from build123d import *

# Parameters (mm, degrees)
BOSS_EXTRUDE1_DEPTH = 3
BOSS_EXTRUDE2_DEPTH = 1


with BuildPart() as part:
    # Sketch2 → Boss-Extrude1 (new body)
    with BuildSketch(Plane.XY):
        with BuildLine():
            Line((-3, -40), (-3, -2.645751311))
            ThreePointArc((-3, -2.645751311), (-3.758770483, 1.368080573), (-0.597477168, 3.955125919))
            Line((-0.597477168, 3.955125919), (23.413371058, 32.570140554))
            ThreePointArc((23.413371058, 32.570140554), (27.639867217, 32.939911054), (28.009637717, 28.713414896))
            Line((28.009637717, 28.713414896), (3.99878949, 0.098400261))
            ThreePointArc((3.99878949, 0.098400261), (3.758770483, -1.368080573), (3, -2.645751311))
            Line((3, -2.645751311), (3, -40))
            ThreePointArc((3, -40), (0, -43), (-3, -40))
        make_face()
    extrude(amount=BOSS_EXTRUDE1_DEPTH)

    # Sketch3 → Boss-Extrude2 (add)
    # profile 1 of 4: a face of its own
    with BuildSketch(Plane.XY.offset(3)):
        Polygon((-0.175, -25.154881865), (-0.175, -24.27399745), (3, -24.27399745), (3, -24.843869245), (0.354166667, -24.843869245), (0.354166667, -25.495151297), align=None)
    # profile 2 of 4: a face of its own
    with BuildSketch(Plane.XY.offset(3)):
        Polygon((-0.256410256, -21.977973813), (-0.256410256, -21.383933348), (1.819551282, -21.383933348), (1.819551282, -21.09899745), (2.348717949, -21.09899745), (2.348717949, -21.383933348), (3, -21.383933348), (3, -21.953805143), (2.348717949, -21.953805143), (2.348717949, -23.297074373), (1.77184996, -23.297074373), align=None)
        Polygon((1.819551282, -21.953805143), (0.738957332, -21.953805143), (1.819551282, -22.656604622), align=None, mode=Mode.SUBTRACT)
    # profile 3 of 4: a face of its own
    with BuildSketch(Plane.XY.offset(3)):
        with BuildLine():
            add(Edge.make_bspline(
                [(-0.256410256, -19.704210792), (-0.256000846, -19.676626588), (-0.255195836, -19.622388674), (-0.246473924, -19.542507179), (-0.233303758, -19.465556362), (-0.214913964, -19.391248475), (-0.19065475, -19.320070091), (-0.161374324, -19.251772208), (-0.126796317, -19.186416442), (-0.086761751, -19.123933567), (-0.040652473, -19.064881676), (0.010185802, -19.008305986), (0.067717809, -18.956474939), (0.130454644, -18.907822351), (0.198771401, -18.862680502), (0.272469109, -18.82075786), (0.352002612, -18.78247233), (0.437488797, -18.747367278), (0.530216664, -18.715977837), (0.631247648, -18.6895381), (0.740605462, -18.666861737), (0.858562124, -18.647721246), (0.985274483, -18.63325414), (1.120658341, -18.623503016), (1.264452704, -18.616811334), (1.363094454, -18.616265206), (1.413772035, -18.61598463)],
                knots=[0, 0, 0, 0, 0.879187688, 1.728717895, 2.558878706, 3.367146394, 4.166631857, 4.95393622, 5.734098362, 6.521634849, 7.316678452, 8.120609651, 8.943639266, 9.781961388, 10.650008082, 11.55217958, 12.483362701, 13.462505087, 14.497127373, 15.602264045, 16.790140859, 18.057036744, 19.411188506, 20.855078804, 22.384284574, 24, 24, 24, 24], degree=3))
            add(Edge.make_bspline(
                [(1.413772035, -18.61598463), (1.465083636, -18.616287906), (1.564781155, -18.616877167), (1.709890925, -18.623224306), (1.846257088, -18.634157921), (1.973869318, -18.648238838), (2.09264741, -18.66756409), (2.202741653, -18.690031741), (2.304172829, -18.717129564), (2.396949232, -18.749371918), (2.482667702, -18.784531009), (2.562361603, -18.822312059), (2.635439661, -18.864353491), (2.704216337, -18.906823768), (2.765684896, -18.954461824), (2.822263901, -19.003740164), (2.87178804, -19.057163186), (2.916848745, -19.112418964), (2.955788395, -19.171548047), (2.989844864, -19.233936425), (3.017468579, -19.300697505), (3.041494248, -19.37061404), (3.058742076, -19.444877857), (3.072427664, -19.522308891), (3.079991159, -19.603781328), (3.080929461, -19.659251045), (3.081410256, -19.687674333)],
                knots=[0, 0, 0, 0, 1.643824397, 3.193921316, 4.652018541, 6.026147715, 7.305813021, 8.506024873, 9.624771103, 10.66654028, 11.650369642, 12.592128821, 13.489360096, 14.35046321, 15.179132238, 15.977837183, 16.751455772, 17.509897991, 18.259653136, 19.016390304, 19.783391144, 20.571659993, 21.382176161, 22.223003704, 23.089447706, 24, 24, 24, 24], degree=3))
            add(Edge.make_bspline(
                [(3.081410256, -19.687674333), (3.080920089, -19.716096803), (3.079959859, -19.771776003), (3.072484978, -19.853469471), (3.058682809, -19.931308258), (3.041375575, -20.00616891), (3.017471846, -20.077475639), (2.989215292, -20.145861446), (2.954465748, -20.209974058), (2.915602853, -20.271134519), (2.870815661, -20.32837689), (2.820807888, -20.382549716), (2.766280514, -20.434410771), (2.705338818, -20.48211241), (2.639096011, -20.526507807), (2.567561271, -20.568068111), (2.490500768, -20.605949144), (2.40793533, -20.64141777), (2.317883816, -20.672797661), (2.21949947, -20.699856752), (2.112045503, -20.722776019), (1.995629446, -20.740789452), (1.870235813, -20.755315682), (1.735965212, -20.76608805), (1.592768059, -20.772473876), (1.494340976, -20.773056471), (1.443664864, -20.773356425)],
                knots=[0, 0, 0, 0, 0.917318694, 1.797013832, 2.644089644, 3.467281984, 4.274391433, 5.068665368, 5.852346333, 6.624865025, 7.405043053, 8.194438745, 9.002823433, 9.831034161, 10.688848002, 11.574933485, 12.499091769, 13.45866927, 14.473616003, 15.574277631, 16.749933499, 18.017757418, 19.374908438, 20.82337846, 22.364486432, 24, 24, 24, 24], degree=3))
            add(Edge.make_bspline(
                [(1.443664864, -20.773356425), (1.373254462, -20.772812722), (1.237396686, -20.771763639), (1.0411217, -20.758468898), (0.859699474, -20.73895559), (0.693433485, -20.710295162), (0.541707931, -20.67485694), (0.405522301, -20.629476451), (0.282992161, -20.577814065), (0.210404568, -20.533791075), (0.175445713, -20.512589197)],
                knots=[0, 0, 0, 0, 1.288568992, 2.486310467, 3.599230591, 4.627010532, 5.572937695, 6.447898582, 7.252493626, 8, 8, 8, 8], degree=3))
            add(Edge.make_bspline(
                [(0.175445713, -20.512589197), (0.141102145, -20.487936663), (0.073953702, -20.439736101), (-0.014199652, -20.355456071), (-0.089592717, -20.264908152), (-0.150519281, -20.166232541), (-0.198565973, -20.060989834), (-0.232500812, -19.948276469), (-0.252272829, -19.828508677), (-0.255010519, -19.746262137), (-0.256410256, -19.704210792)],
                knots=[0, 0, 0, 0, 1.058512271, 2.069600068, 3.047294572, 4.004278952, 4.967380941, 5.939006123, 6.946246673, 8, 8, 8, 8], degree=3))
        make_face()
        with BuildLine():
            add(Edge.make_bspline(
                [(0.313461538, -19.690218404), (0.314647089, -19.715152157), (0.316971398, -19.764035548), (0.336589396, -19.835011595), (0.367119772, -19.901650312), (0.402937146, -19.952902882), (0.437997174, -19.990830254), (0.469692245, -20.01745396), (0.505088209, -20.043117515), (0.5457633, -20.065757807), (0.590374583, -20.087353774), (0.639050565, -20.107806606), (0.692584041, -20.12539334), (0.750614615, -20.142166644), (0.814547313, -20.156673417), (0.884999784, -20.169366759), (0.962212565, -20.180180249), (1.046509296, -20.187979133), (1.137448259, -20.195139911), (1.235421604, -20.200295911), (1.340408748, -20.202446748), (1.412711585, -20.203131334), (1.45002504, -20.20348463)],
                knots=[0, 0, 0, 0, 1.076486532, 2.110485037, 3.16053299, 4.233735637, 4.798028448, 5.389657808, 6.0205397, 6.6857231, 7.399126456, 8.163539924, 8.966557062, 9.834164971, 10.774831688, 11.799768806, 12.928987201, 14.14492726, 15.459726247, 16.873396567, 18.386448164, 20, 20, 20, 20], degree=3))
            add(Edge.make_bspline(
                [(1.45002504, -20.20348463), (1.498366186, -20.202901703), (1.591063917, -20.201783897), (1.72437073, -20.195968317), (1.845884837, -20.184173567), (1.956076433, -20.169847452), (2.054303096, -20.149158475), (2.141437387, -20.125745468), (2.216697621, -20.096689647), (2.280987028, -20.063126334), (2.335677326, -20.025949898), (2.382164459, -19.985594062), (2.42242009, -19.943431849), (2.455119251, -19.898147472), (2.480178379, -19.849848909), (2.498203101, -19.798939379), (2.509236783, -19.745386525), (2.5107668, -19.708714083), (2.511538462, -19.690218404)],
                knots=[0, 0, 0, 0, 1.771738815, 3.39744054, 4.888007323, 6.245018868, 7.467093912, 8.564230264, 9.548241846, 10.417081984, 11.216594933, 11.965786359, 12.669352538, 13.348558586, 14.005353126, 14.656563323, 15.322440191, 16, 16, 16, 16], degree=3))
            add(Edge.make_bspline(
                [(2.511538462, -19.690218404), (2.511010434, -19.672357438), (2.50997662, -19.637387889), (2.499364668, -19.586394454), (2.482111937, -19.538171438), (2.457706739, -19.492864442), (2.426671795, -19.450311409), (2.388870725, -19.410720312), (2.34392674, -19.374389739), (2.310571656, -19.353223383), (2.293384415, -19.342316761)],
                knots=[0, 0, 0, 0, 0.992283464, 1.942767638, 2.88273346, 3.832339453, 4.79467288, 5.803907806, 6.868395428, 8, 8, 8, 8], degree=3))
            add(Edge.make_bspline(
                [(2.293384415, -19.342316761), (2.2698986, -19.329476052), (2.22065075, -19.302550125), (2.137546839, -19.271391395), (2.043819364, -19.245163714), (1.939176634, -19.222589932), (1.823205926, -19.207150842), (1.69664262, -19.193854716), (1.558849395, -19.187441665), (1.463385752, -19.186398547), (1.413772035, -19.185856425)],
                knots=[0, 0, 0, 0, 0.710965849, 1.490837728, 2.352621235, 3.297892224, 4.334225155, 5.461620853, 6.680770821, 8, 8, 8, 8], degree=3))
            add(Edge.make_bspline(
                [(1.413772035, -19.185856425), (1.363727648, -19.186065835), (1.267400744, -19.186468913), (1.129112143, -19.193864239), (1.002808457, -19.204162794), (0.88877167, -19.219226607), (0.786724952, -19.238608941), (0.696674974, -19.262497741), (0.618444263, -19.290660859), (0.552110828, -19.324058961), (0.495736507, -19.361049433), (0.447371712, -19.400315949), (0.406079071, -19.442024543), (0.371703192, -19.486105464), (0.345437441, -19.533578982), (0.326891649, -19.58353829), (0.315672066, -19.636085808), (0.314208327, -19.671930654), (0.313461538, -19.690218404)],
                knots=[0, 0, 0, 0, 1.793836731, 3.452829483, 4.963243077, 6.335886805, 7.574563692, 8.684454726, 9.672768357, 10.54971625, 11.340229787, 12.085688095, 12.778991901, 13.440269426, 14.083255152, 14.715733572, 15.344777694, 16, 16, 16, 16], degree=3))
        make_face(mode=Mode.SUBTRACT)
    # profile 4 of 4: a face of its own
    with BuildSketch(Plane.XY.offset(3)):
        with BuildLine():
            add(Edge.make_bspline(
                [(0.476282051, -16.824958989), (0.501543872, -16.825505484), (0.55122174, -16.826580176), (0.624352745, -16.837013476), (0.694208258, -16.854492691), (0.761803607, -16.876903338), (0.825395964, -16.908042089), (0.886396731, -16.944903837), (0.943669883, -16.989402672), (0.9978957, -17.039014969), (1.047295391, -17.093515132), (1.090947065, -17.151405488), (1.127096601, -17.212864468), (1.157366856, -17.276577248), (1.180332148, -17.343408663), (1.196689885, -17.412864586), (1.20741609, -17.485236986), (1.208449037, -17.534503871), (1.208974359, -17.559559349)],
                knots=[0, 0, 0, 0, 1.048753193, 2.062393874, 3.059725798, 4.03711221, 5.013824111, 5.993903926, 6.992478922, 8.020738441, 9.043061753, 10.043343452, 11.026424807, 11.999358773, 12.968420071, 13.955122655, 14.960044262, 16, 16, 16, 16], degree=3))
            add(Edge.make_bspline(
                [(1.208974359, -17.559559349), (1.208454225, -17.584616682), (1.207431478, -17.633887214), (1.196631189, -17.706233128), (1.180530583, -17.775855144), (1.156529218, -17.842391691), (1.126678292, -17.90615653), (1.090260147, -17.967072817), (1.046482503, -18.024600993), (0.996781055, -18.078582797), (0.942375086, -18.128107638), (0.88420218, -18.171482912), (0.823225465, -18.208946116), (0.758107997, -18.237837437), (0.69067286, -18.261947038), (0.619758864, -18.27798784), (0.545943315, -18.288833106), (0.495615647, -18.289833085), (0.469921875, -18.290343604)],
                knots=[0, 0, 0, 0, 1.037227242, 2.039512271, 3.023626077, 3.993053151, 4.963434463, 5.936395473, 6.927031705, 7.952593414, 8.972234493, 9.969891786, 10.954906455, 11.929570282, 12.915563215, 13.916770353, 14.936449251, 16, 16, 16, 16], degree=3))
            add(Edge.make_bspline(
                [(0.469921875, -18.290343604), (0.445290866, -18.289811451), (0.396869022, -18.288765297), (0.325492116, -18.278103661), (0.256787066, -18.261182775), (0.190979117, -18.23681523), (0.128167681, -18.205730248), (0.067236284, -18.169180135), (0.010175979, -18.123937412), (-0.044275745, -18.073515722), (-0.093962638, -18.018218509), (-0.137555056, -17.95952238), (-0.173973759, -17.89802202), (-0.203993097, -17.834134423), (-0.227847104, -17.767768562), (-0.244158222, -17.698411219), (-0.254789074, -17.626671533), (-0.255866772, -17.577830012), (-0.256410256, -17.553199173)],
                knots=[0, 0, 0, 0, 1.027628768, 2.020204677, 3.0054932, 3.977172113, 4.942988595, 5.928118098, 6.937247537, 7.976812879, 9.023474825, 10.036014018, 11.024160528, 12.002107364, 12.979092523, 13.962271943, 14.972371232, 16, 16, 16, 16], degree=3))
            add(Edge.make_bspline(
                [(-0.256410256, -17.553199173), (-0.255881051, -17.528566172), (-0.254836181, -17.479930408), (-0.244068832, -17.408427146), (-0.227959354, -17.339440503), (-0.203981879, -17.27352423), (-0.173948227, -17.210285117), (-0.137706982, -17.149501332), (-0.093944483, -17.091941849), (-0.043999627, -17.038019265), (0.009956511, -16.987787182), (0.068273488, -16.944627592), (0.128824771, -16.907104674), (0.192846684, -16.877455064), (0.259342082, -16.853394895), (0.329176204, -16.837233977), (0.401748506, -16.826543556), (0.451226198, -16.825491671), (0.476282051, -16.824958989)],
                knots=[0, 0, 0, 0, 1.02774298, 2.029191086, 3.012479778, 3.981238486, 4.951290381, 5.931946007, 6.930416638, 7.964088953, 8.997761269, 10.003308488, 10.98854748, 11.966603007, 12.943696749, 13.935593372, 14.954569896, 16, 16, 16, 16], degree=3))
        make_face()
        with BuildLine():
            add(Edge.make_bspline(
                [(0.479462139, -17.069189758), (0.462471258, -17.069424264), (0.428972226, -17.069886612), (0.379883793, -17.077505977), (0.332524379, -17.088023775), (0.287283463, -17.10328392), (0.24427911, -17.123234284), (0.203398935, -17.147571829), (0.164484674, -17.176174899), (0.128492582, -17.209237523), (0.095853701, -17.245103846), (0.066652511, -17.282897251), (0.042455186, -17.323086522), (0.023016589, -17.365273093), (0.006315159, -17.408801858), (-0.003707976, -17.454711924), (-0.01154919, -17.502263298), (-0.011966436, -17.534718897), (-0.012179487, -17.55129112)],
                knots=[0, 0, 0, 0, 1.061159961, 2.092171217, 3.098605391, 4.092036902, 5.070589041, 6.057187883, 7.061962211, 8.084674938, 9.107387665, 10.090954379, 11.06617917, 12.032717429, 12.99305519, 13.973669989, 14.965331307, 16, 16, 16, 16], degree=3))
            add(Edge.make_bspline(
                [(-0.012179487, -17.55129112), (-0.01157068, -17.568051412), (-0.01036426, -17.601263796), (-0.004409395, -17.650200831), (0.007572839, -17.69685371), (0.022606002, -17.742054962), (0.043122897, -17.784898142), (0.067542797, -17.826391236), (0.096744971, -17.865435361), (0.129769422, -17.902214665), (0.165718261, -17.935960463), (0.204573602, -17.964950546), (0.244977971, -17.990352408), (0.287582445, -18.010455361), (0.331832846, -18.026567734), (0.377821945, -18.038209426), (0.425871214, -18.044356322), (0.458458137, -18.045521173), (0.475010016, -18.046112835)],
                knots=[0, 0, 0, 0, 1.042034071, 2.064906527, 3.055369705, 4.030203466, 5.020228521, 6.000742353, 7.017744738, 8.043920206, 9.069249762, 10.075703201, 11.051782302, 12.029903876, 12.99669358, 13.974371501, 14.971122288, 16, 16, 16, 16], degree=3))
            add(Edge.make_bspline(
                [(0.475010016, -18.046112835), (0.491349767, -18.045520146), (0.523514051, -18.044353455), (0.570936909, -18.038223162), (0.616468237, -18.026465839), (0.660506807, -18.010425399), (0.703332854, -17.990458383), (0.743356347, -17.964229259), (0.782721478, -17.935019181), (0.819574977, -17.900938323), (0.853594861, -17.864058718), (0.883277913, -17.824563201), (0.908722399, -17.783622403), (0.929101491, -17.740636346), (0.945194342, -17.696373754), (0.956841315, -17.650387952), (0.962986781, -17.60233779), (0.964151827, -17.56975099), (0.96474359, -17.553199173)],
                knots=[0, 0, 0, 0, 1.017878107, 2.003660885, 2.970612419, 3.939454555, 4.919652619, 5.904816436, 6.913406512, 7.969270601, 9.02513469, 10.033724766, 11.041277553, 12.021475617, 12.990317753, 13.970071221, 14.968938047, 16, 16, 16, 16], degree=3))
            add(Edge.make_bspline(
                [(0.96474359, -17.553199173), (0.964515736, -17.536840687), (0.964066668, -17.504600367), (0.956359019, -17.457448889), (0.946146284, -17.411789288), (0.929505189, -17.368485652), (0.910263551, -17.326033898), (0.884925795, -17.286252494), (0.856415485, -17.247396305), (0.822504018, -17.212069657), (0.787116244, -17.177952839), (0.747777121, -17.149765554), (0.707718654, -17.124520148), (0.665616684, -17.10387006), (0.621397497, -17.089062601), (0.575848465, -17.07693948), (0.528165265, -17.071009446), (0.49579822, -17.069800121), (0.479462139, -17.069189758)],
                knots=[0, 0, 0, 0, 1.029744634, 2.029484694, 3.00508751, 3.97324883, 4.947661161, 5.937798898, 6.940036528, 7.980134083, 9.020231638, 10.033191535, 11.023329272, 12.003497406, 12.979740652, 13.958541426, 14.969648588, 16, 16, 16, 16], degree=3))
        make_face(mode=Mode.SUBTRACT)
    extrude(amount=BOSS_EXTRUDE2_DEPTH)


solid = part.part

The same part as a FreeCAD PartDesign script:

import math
import FreeCAD as App
import Part
import Sketcher
from FreeCAD import Vector
Q = App.Units.Quantity


def add_polygon(sketch, points):
    """Adds a closed chain of lines whose ends are joined by coincident constraints."""
    first, n = sketch.GeometryCount, len(points)
    for a, b in zip(points, points[1:] + points[:1]):
        sketch.addGeometry(Part.LineSegment(App.Vector(*a, 0), App.Vector(*b, 0)), False)
    for i in range(n):
        sketch.addConstraint(Sketcher.Constraint("Coincident", first + i, 2, first + (i + 1) % n, 1))

doc = App.newDocument("Part")
body = doc.addObject("PartDesign::Body", "Body")

# Sketch on XY plane
sketch1 = body.newObject("Sketcher::SketchObject", "Sketch")
sketch1.AttachmentSupport = (doc.getObject("XY_Plane"), [""])
sketch1.MapMode = "FlatFace"
sketch1.addGeometry(Part.LineSegment(Vector(-3, -2.6, 0), Vector(-3, -40, 0)), False)
sketch1.addGeometry(Part.ArcOfCircle(Part.Circle(Vector(0, -40, 0), Vector(0, 0, 1), 3), math.radians(180), math.radians(360)), False)
sketch1.addGeometry(Part.LineSegment(Vector(3, -40, 0), Vector(3, -2.6, 0)), False)
sketch1.addGeometry(Part.ArcOfCircle(Part.Circle(Vector(0, 0, 0), Vector(0, 0, 1), 4), math.radians(-41), math.radians(1)), False)
sketch1.addGeometry(Part.LineSegment(Vector(4, 0.1, 0), Vector(28, 28.7, 0)), False)
sketch1.addGeometry(Part.ArcOfCircle(Part.Circle(Vector(25.7, 30.6, 0), Vector(0, 0, 1), 3), math.radians(-40), math.radians(140)), False)
sketch1.addGeometry(Part.LineSegment(Vector(23.4, 32.6, 0), Vector(-0.6, 4, 0)), False)
sketch1.addGeometry(Part.ArcOfCircle(Part.Circle(Vector(0, 0, 0), Vector(0, 0, 1), 4), math.radians(99), math.radians(221)), False)
sketch1.addConstraint(Sketcher.Constraint("Tangent", 0, 2, 1, 1))
sketch1.addConstraint(Sketcher.Constraint("Tangent", 1, 2, 2, 1))
sketch1.addConstraint(Sketcher.Constraint("Coincident", 2, 2, 3, 1))
sketch1.addConstraint(Sketcher.Constraint("Coincident", 3, 2, 4, 1))
sketch1.addConstraint(Sketcher.Constraint("Tangent", 4, 2, 5, 1))
sketch1.addConstraint(Sketcher.Constraint("Tangent", 5, 2, 6, 1))
sketch1.addConstraint(Sketcher.Constraint("Coincident", 6, 2, 7, 1))
sketch1.addConstraint(Sketcher.Constraint("Coincident", 7, 2, 0, 1))
sketch1.addConstraint(Sketcher.Constraint("Vertical", 0))
sketch1.addConstraint(Sketcher.Constraint("Vertical", 2))
sketch1.addConstraint(Sketcher.Constraint("Coincident", 3, 3, -1, 1))
sketch1.addConstraint(Sketcher.Constraint("Coincident", 7, 3, -1, 1))
sketch1.addConstraint(Sketcher.Constraint("Equal", 1, 5))
sketch1.addConstraint(Sketcher.Constraint("Equal", 3, 7))
sketch1.addConstraint(Sketcher.Constraint("PointOnObject", 1, 3, -2))
sketch1.addConstraint(Sketcher.Constraint("Parallel", 4, 6))
sketch1.addConstraint(Sketcher.Constraint("Equal", 4, 6))
sketch1.addConstraint(Sketcher.Constraint("Radius", 1, Q("3 mm")))
sketch1.addConstraint(Sketcher.Constraint("Radius", 3, Q("4 mm")))
sketch1.addConstraint(Sketcher.Constraint("Angle", 4, Q("50 deg")))
sketch1.addConstraint(Sketcher.Constraint("DistanceY", 1, 3, -1, 1, Q("40 mm")))
sketch1.addConstraint(Sketcher.Constraint("Distance", 4, Q("37.354249 mm")))
pad1 = body.newObject("PartDesign::Pad", "Pad")
pad1.Profile = sketch1
pad1.Length = 3

# Sketch on XY plane
sketch2 = body.newObject("Sketcher::SketchObject", "Sketch001")
sketch2.AttachmentSupport = (doc.getObject("XY_Plane"), [""])
sketch2.MapMode = "FlatFace"
sketch2.AttachmentOffset = App.Placement(Vector(0, 0, 3), App.Rotation())
add_polygon(sketch2, [(-0.175, -24.273997), (-0.175, -25.154882), (0.354167, -25.495151), (0.354167, -24.843869), (3, -24.843869), (3, -24.273997)])  # lines 0-5
add_polygon(sketch2, [(-0.25641, -21.383933), (-0.25641, -21.977974), (1.77185, -23.297074), (2.348718, -23.297074), (2.348718, -21.953805), (3, -21.953805), (3, -21.383933), (2.348718, -21.383933), (2.348718, -21.098997), (1.819551, -21.098997), (1.819551, -21.383933)])  # lines 6-16
add_polygon(sketch2, [(1.819551, -21.953805), (1.819551, -22.656605), (0.738957, -21.953805)])  # lines 17-19
sketch2.addGeometry(Part.BSplineCurve([Vector(-0.25641, -19.704211, 0), Vector(-0.256001, -19.676627, 0), Vector(-0.255196, -19.622389, 0), Vector(-0.246474, -19.542507, 0), Vector(-0.233304, -19.465556, 0), Vector(-0.214914, -19.391248, 0), Vector(-0.190655, -19.32007, 0), Vector(-0.161374, -19.251772, 0), Vector(-0.126796, -19.186416, 0), Vector(-0.086762, -19.123934, 0), Vector(-0.040652, -19.064882, 0), Vector(0.010186, -19.008306, 0), Vector(0.067718, -18.956475, 0), Vector(0.130455, -18.907822, 0), Vector(0.198771, -18.862681, 0), Vector(0.272469, -18.820758, 0), Vector(0.352003, -18.782472, 0), Vector(0.437489, -18.747367, 0), Vector(0.530217, -18.715978, 0), Vector(0.631248, -18.689538, 0), Vector(0.740605, -18.666862, 0), Vector(0.858562, -18.647721, 0), Vector(0.985274, -18.633254, 0), Vector(1.120658, -18.623503, 0), Vector(1.264453, -18.616811, 0), Vector(1.363094, -18.616265, 0), Vector(1.413772, -18.615985, 0)], [4, 1, 1, 1, 1, 1, 1, 1, 1, 1, 1, 1, 1, 1, 1, 1, 1, 1, 1, 1, 1, 1, 1, 1, 4], [0, 0.879187688, 1.728717895, 2.558878706, 3.367146394, 4.166631857, 4.95393622, 5.734098362, 6.521634849, 7.316678452, 8.120609651, 8.943639266, 9.781961388, 10.650008082, 11.55217958, 12.483362701, 13.462505087, 14.497127373, 15.602264045, 16.790140859, 18.057036744, 19.411188506, 20.855078804, 22.384284574, 24], False, 3, [1, 1, 1, 1, 1, 1, 1, 1, 1, 1, 1, 1, 1, 1, 1, 1, 1, 1, 1, 1, 1, 1, 1, 1, 1, 1, 1], False), False)  # 20
sketch2.addGeometry(Part.BSplineCurve([Vector(0.175446, -20.512589, 0), Vector(0.141102, -20.487937, 0), Vector(0.073954, -20.439736, 0), Vector(-0.0142, -20.355456, 0), Vector(-0.089593, -20.264908, 0), Vector(-0.150519, -20.166233, 0), Vector(-0.198566, -20.06099, 0), Vector(-0.232501, -19.948276, 0), Vector(-0.252273, -19.828509, 0), Vector(-0.255011, -19.746262, 0), Vector(-0.25641, -19.704211, 0)], [4, 1, 1, 1, 1, 1, 1, 1, 4], [0, 1.058512271, 2.069600068, 3.047294572, 4.004278952, 4.967380941, 5.939006123, 6.946246673, 8], False, 3, [1, 1, 1, 1, 1, 1, 1, 1, 1, 1, 1], False), False)  # 21
sketch2.addGeometry(Part.BSplineCurve([Vector(1.443665, -20.773356, 0), Vector(1.373254, -20.772813, 0), Vector(1.237397, -20.771764, 0), Vector(1.041122, -20.758469, 0), Vector(0.859699, -20.738956, 0), Vector(0.693433, -20.710295, 0), Vector(0.541708, -20.674857, 0), Vector(0.405522, -20.629476, 0), Vector(0.282992, -20.577814, 0), Vector(0.210405, -20.533791, 0), Vector(0.175446, -20.512589, 0)], [4, 1, 1, 1, 1, 1, 1, 1, 4], [0, 1.288568992, 2.486310467, 3.599230591, 4.627010532, 5.572937695, 6.447898582, 7.252493626, 8], False, 3, [1, 1, 1, 1, 1, 1, 1, 1, 1, 1, 1], False), False)  # 22
sketch2.addGeometry(Part.BSplineCurve([Vector(3.08141, -19.687674, 0), Vector(3.08092, -19.716097, 0), Vector(3.07996, -19.771776, 0), Vector(3.072485, -19.853469, 0), Vector(3.058683, -19.931308, 0), Vector(3.041376, -20.006169, 0), Vector(3.017472, -20.077476, 0), Vector(2.989215, -20.145861, 0), Vector(2.954466, -20.209974, 0), Vector(2.915603, -20.271135, 0), Vector(2.870816, -20.328377, 0), Vector(2.820808, -20.38255, 0), Vector(2.766281, -20.434411, 0), Vector(2.705339, -20.482112, 0), Vector(2.639096, -20.526508, 0), Vector(2.567561, -20.568068, 0), Vector(2.490501, -20.605949, 0), Vector(2.407935, -20.641418, 0), Vector(2.317884, -20.672798, 0), Vector(2.219499, -20.699857, 0), Vector(2.112046, -20.722776, 0), Vector(1.995629, -20.740789, 0), Vector(1.870236, -20.755316, 0), Vector(1.735965, -20.766088, 0), Vector(1.592768, -20.772474, 0), Vector(1.494341, -20.773056, 0), Vector(1.443665, -20.773356, 0)], [4, 1, 1, 1, 1, 1, 1, 1, 1, 1, 1, 1, 1, 1, 1, 1, 1, 1, 1, 1, 1, 1, 1, 1, 4], [0, 0.917318694, 1.797013832, 2.644089644, 3.467281984, 4.274391433, 5.068665368, 5.852346333, 6.624865025, 7.405043053, 8.194438745, 9.002823433, 9.831034161, 10.688848002, 11.574933485, 12.499091769, 13.45866927, 14.473616003, 15.574277631, 16.749933499, 18.017757418, 19.374908438, 20.82337846, 22.364486432, 24], False, 3, [1, 1, 1, 1, 1, 1, 1, 1, 1, 1, 1, 1, 1, 1, 1, 1, 1, 1, 1, 1, 1, 1, 1, 1, 1, 1, 1], False), False)  # 23
sketch2.addGeometry(Part.BSplineCurve([Vector(1.413772, -18.615985, 0), Vector(1.465084, -18.616288, 0), Vector(1.564781, -18.616877, 0), Vector(1.709891, -18.623224, 0), Vector(1.846257, -18.634158, 0), Vector(1.973869, -18.648239, 0), Vector(2.092647, -18.667564, 0), Vector(2.202742, -18.690032, 0), Vector(2.304173, -18.71713, 0), Vector(2.396949, -18.749372, 0), Vector(2.482668, -18.784531, 0), Vector(2.562362, -18.822312, 0), Vector(2.63544, -18.864353, 0), Vector(2.704216, -18.906824, 0), Vector(2.765685, -18.954462, 0), Vector(2.822264, -19.00374, 0), Vector(2.871788, -19.057163, 0), Vector(2.916849, -19.112419, 0), Vector(2.955788, -19.171548, 0), Vector(2.989845, -19.233936, 0), Vector(3.017469, -19.300698, 0), Vector(3.041494, -19.370614, 0), Vector(3.058742, -19.444878, 0), Vector(3.072428, -19.522309, 0), Vector(3.079991, -19.603781, 0), Vector(3.080929, -19.659251, 0), Vector(3.08141, -19.687674, 0)], [4, 1, 1, 1, 1, 1, 1, 1, 1, 1, 1, 1, 1, 1, 1, 1, 1, 1, 1, 1, 1, 1, 1, 1, 4], [0, 1.643824397, 3.193921316, 4.652018541, 6.026147715, 7.305813021, 8.506024873, 9.624771103, 10.66654028, 11.650369642, 12.592128821, 13.489360096, 14.35046321, 15.179132238, 15.977837183, 16.751455772, 17.509897991, 18.259653136, 19.016390304, 19.783391144, 20.571659993, 21.382176161, 22.223003704, 23.089447706, 24], False, 3, [1, 1, 1, 1, 1, 1, 1, 1, 1, 1, 1, 1, 1, 1, 1, 1, 1, 1, 1, 1, 1, 1, 1, 1, 1, 1, 1], False), False)  # 24
sketch2.addGeometry(Part.BSplineCurve([Vector(1.413772, -19.185856, 0), Vector(1.363728, -19.186066, 0), Vector(1.267401, -19.186469, 0), Vector(1.129112, -19.193864, 0), Vector(1.002808, -19.204163, 0), Vector(0.888772, -19.219227, 0), Vector(0.786725, -19.238609, 0), Vector(0.696675, -19.262498, 0), Vector(0.618444, -19.290661, 0), Vector(0.552111, -19.324059, 0), Vector(0.495737, -19.361049, 0), Vector(0.447372, -19.400316, 0), Vector(0.406079, -19.442025, 0), Vector(0.371703, -19.486105, 0), Vector(0.345437, -19.533579, 0), Vector(0.326892, -19.583538, 0), Vector(0.315672, -19.636086, 0), Vector(0.314208, -19.671931, 0), Vector(0.313462, -19.690218, 0)], [4, 1, 1, 1, 1, 1, 1, 1, 1, 1, 1, 1, 1, 1, 1, 1, 4], [0, 1.793836731, 3.452829483, 4.963243077, 6.335886805, 7.574563692, 8.684454726, 9.672768357, 10.54971625, 11.340229787, 12.085688095, 12.778991901, 13.440269426, 14.083255152, 14.715733572, 15.344777694, 16], False, 3, [1, 1, 1, 1, 1, 1, 1, 1, 1, 1, 1, 1, 1, 1, 1, 1, 1, 1, 1], False), False)  # 25
sketch2.addGeometry(Part.BSplineCurve([Vector(2.293384, -19.342317, 0), Vector(2.269899, -19.329476, 0), Vector(2.220651, -19.30255, 0), Vector(2.137547, -19.271391, 0), Vector(2.043819, -19.245164, 0), Vector(1.939177, -19.22259, 0), Vector(1.823206, -19.207151, 0), Vector(1.696643, -19.193855, 0), Vector(1.558849, -19.187442, 0), Vector(1.463386, -19.186399, 0), Vector(1.413772, -19.185856, 0)], [4, 1, 1, 1, 1, 1, 1, 1, 4], [0, 0.710965849, 1.490837728, 2.352621235, 3.297892224, 4.334225155, 5.461620853, 6.680770821, 8], False, 3, [1, 1, 1, 1, 1, 1, 1, 1, 1, 1, 1], False), False)  # 26
sketch2.addGeometry(Part.BSplineCurve([Vector(2.511538, -19.690218, 0), Vector(2.51101, -19.672357, 0), Vector(2.509977, -19.637388, 0), Vector(2.499365, -19.586394, 0), Vector(2.482112, -19.538171, 0), Vector(2.457707, -19.492864, 0), Vector(2.426672, -19.450311, 0), Vector(2.388871, -19.41072, 0), Vector(2.343927, -19.37439, 0), Vector(2.310572, -19.353223, 0), Vector(2.293384, -19.342317, 0)], [4, 1, 1, 1, 1, 1, 1, 1, 4], [0, 0.992283464, 1.942767638, 2.88273346, 3.832339453, 4.79467288, 5.803907806, 6.868395428, 8], False, 3, [1, 1, 1, 1, 1, 1, 1, 1, 1, 1, 1], False), False)  # 27
sketch2.addGeometry(Part.BSplineCurve([Vector(1.450025, -20.203485, 0), Vector(1.498366, -20.202902, 0), Vector(1.591064, -20.201784, 0), Vector(1.724371, -20.195968, 0), Vector(1.845885, -20.184174, 0), Vector(1.956076, -20.169847, 0), Vector(2.054303, -20.149158, 0), Vector(2.141437, -20.125745, 0), Vector(2.216698, -20.09669, 0), Vector(2.280987, -20.063126, 0), Vector(2.335677, -20.02595, 0), Vector(2.382164, -19.985594, 0), Vector(2.42242, -19.943432, 0), Vector(2.455119, -19.898147, 0), Vector(2.480178, -19.849849, 0), Vector(2.498203, -19.798939, 0), Vector(2.509237, -19.745387, 0), Vector(2.510767, -19.708714, 0), Vector(2.511538, -19.690218, 0)], [4, 1, 1, 1, 1, 1, 1, 1, 1, 1, 1, 1, 1, 1, 1, 1, 4], [0, 1.771738815, 3.39744054, 4.888007323, 6.245018868, 7.467093912, 8.564230264, 9.548241846, 10.417081984, 11.216594933, 11.965786359, 12.669352538, 13.348558586, 14.005353126, 14.656563323, 15.322440191, 16], False, 3, [1, 1, 1, 1, 1, 1, 1, 1, 1, 1, 1, 1, 1, 1, 1, 1, 1, 1, 1], False), False)  # 28
sketch2.addGeometry(Part.BSplineCurve([Vector(0.313462, -19.690218, 0), Vector(0.314647, -19.715152, 0), Vector(0.316971, -19.764036, 0), Vector(0.336589, -19.835012, 0), Vector(0.36712, -19.90165, 0), Vector(0.402937, -19.952903, 0), Vector(0.437997, -19.99083, 0), Vector(0.469692, -20.017454, 0), Vector(0.505088, -20.043118, 0), Vector(0.545763, -20.065758, 0), Vector(0.590375, -20.087354, 0), Vector(0.639051, -20.107807, 0), Vector(0.692584, -20.125393, 0), Vector(0.750615, -20.142167, 0), Vector(0.814547, -20.156673, 0), Vector(0.885, -20.169367, 0), Vector(0.962213, -20.18018, 0), Vector(1.046509, -20.187979, 0), Vector(1.137448, -20.19514, 0), Vector(1.235422, -20.200296, 0), Vector(1.340409, -20.202447, 0), Vector(1.412712, -20.203131, 0), Vector(1.450025, -20.203485, 0)], [4, 1, 1, 1, 1, 1, 1, 1, 1, 1, 1, 1, 1, 1, 1, 1, 1, 1, 1, 1, 4], [0, 1.076486532, 2.110485037, 3.16053299, 4.233735637, 4.798028448, 5.389657808, 6.0205397, 6.6857231, 7.399126456, 8.163539924, 8.966557062, 9.834164971, 10.774831688, 11.799768806, 12.928987201, 14.14492726, 15.459726247, 16.873396567, 18.386448164, 20], False, 3, [1, 1, 1, 1, 1, 1, 1, 1, 1, 1, 1, 1, 1, 1, 1, 1, 1, 1, 1, 1, 1, 1, 1], False), False)  # 29
sketch2.addGeometry(Part.BSplineCurve([Vector(0.476282, -16.824959, 0), Vector(0.501544, -16.825505, 0), Vector(0.551222, -16.82658, 0), Vector(0.624353, -16.837013, 0), Vector(0.694208, -16.854493, 0), Vector(0.761804, -16.876903, 0), Vector(0.825396, -16.908042, 0), Vector(0.886397, -16.944904, 0), Vector(0.94367, -16.989403, 0), Vector(0.997896, -17.039015, 0), Vector(1.047295, -17.093515, 0), Vector(1.090947, -17.151405, 0), Vector(1.127097, -17.212864, 0), Vector(1.157367, -17.276577, 0), Vector(1.180332, -17.343409, 0), Vector(1.19669, -17.412865, 0), Vector(1.207416, -17.485237, 0), Vector(1.208449, -17.534504, 0), Vector(1.208974, -17.559559, 0)], [4, 1, 1, 1, 1, 1, 1, 1, 1, 1, 1, 1, 1, 1, 1, 1, 4], [0, 1.048753193, 2.062393874, 3.059725798, 4.03711221, 5.013824111, 5.993903926, 6.992478922, 8.020738441, 9.043061753, 10.043343452, 11.026424807, 11.999358773, 12.968420071, 13.955122655, 14.960044262, 16], False, 3, [1, 1, 1, 1, 1, 1, 1, 1, 1, 1, 1, 1, 1, 1, 1, 1, 1, 1, 1], False), False)  # 30
sketch2.addGeometry(Part.BSplineCurve([Vector(-0.25641, -17.553199, 0), Vector(-0.255881, -17.528566, 0), Vector(-0.254836, -17.47993, 0), Vector(-0.244069, -17.408427, 0), Vector(-0.227959, -17.339441, 0), Vector(-0.203982, -17.273524, 0), Vector(-0.173948, -17.210285, 0), Vector(-0.137707, -17.149501, 0), Vector(-0.093944, -17.091942, 0), Vector(-0.044, -17.038019, 0), Vector(0.009957, -16.987787, 0), Vector(0.068273, -16.944628, 0), Vector(0.128825, -16.907105, 0), Vector(0.192847, -16.877455, 0), Vector(0.259342, -16.853395, 0), Vector(0.329176, -16.837234, 0), Vector(0.401749, -16.826544, 0), Vector(0.451226, -16.825492, 0), Vector(0.476282, -16.824959, 0)], [4, 1, 1, 1, 1, 1, 1, 1, 1, 1, 1, 1, 1, 1, 1, 1, 4], [0, 1.02774298, 2.029191086, 3.012479778, 3.981238486, 4.951290381, 5.931946007, 6.930416638, 7.964088953, 8.997761269, 10.003308488, 10.98854748, 11.966603007, 12.943696749, 13.935593372, 14.954569896, 16], False, 3, [1, 1, 1, 1, 1, 1, 1, 1, 1, 1, 1, 1, 1, 1, 1, 1, 1, 1, 1], False), False)  # 31
sketch2.addGeometry(Part.BSplineCurve([Vector(0.469922, -18.290344, 0), Vector(0.445291, -18.289811, 0), Vector(0.396869, -18.288765, 0), Vector(0.325492, -18.278104, 0), Vector(0.256787, -18.261183, 0), Vector(0.190979, -18.236815, 0), Vector(0.128168, -18.20573, 0), Vector(0.067236, -18.16918, 0), Vector(0.010176, -18.123937, 0), Vector(-0.044276, -18.073516, 0), Vector(-0.093963, -18.018219, 0), Vector(-0.137555, -17.959522, 0), Vector(-0.173974, -17.898022, 0), Vector(-0.203993, -17.834134, 0), Vector(-0.227847, -17.767769, 0), Vector(-0.244158, -17.698411, 0), Vector(-0.254789, -17.626672, 0), Vector(-0.255867, -17.57783, 0), Vector(-0.25641, -17.553199, 0)], [4, 1, 1, 1, 1, 1, 1, 1, 1, 1, 1, 1, 1, 1, 1, 1, 4], [0, 1.027628768, 2.020204677, 3.0054932, 3.977172113, 4.942988595, 5.928118098, 6.937247537, 7.976812879, 9.023474825, 10.036014018, 11.024160528, 12.002107364, 12.979092523, 13.962271943, 14.972371232, 16], False, 3, [1, 1, 1, 1, 1, 1, 1, 1, 1, 1, 1, 1, 1, 1, 1, 1, 1, 1, 1], False), False)  # 32
sketch2.addGeometry(Part.BSplineCurve([Vector(1.208974, -17.559559, 0), Vector(1.208454, -17.584617, 0), Vector(1.207431, -17.633887, 0), Vector(1.196631, -17.706233, 0), Vector(1.180531, -17.775855, 0), Vector(1.156529, -17.842392, 0), Vector(1.126678, -17.906157, 0), Vector(1.09026, -17.967073, 0), Vector(1.046483, -18.024601, 0), Vector(0.996781, -18.078583, 0), Vector(0.942375, -18.128108, 0), Vector(0.884202, -18.171483, 0), Vector(0.823225, -18.208946, 0), Vector(0.758108, -18.237837, 0), Vector(0.690673, -18.261947, 0), Vector(0.619759, -18.277988, 0), Vector(0.545943, -18.288833, 0), Vector(0.495616, -18.289833, 0), Vector(0.469922, -18.290344, 0)], [4, 1, 1, 1, 1, 1, 1, 1, 1, 1, 1, 1, 1, 1, 1, 1, 4], [0, 1.037227242, 2.039512271, 3.023626077, 3.993053151, 4.963434463, 5.936395473, 6.927031705, 7.952593414, 8.972234493, 9.969891786, 10.954906455, 11.929570282, 12.915563215, 13.916770353, 14.936449251, 16], False, 3, [1, 1, 1, 1, 1, 1, 1, 1, 1, 1, 1, 1, 1, 1, 1, 1, 1, 1, 1], False), False)  # 33
sketch2.addGeometry(Part.BSplineCurve([Vector(0.964744, -17.553199, 0), Vector(0.964516, -17.536841, 0), Vector(0.964067, -17.5046, 0), Vector(0.956359, -17.457449, 0), Vector(0.946146, -17.411789, 0), Vector(0.929505, -17.368486, 0), Vector(0.910264, -17.326034, 0), Vector(0.884926, -17.286252, 0), Vector(0.856415, -17.247396, 0), Vector(0.822504, -17.21207, 0), Vector(0.787116, -17.177953, 0), Vector(0.747777, -17.149766, 0), Vector(0.707719, -17.12452, 0), Vector(0.665617, -17.10387, 0), Vector(0.621397, -17.089063, 0), Vector(0.575848, -17.076939, 0), Vector(0.528165, -17.071009, 0), Vector(0.495798, -17.0698, 0), Vector(0.479462, -17.06919, 0)], [4, 1, 1, 1, 1, 1, 1, 1, 1, 1, 1, 1, 1, 1, 1, 1, 4], [0, 1.029744634, 2.029484694, 3.00508751, 3.97324883, 4.947661161, 5.937798898, 6.940036528, 7.980134083, 9.020231638, 10.033191535, 11.023329272, 12.003497406, 12.979740652, 13.958541426, 14.969648588, 16], False, 3, [1, 1, 1, 1, 1, 1, 1, 1, 1, 1, 1, 1, 1, 1, 1, 1, 1, 1, 1], False), False)  # 34
sketch2.addGeometry(Part.BSplineCurve([Vector(0.47501, -18.046113, 0), Vector(0.49135, -18.04552, 0), Vector(0.523514, -18.044353, 0), Vector(0.570937, -18.038223, 0), Vector(0.616468, -18.026466, 0), Vector(0.660507, -18.010425, 0), Vector(0.703333, -17.990458, 0), Vector(0.743356, -17.964229, 0), Vector(0.782721, -17.935019, 0), Vector(0.819575, -17.900938, 0), Vector(0.853595, -17.864059, 0), Vector(0.883278, -17.824563, 0), Vector(0.908722, -17.783622, 0), Vector(0.929101, -17.740636, 0), Vector(0.945194, -17.696374, 0), Vector(0.956841, -17.650388, 0), Vector(0.962987, -17.602338, 0), Vector(0.964152, -17.569751, 0), Vector(0.964744, -17.553199, 0)], [4, 1, 1, 1, 1, 1, 1, 1, 1, 1, 1, 1, 1, 1, 1, 1, 4], [0, 1.017878107, 2.003660885, 2.970612419, 3.939454555, 4.919652619, 5.904816436, 6.913406512, 7.969270601, 9.02513469, 10.033724766, 11.041277553, 12.021475617, 12.990317753, 13.970071221, 14.968938047, 16], False, 3, [1, 1, 1, 1, 1, 1, 1, 1, 1, 1, 1, 1, 1, 1, 1, 1, 1, 1, 1], False), False)  # 35
sketch2.addGeometry(Part.BSplineCurve([Vector(-0.012179, -17.551291, 0), Vector(-0.011571, -17.568051, 0), Vector(-0.010364, -17.601264, 0), Vector(-0.004409, -17.650201, 0), Vector(0.007573, -17.696854, 0), Vector(0.022606, -17.742055, 0), Vector(0.043123, -17.784898, 0), Vector(0.067543, -17.826391, 0), Vector(0.096745, -17.865435, 0), Vector(0.129769, -17.902215, 0), Vector(0.165718, -17.93596, 0), Vector(0.204574, -17.964951, 0), Vector(0.244978, -17.990352, 0), Vector(0.287582, -18.010455, 0), Vector(0.331833, -18.026568, 0), Vector(0.377822, -18.038209, 0), Vector(0.425871, -18.044356, 0), Vector(0.458458, -18.045521, 0), Vector(0.47501, -18.046113, 0)], [4, 1, 1, 1, 1, 1, 1, 1, 1, 1, 1, 1, 1, 1, 1, 1, 4], [0, 1.042034071, 2.064906527, 3.055369705, 4.030203466, 5.020228521, 6.000742353, 7.017744738, 8.043920206, 9.069249762, 10.075703201, 11.051782302, 12.029903876, 12.99669358, 13.974371501, 14.971122288, 16], False, 3, [1, 1, 1, 1, 1, 1, 1, 1, 1, 1, 1, 1, 1, 1, 1, 1, 1, 1, 1], False), False)  # 36
sketch2.addGeometry(Part.BSplineCurve([Vector(0.479462, -17.06919, 0), Vector(0.462471, -17.069424, 0), Vector(0.428972, -17.069887, 0), Vector(0.379884, -17.077506, 0), Vector(0.332524, -17.088024, 0), Vector(0.287283, -17.103284, 0), Vector(0.244279, -17.123234, 0), Vector(0.203399, -17.147572, 0), Vector(0.164485, -17.176175, 0), Vector(0.128493, -17.209238, 0), Vector(0.095854, -17.245104, 0), Vector(0.066653, -17.282897, 0), Vector(0.042455, -17.323087, 0), Vector(0.023017, -17.365273, 0), Vector(0.006315, -17.408802, 0), Vector(-0.003708, -17.454712, 0), Vector(-0.011549, -17.502263, 0), Vector(-0.011966, -17.534719, 0), Vector(-0.012179, -17.551291, 0)], [4, 1, 1, 1, 1, 1, 1, 1, 1, 1, 1, 1, 1, 1, 1, 1, 4], [0, 1.061159961, 2.092171217, 3.098605391, 4.092036902, 5.070589041, 6.057187883, 7.061962211, 8.084674938, 9.107387665, 10.090954379, 11.06617917, 12.032717429, 12.99305519, 13.973669989, 14.965331307, 16], False, 3, [1, 1, 1, 1, 1, 1, 1, 1, 1, 1, 1, 1, 1, 1, 1, 1, 1, 1, 1], False), False)  # 37
sketch2.addConstraint(Sketcher.Constraint("Block", 20))
sketch2.addConstraint(Sketcher.Constraint("Block", 21))
sketch2.addConstraint(Sketcher.Constraint("Block", 22))
sketch2.addConstraint(Sketcher.Constraint("Block", 23))
sketch2.addConstraint(Sketcher.Constraint("Block", 24))
sketch2.addConstraint(Sketcher.Constraint("Block", 25))
sketch2.addConstraint(Sketcher.Constraint("Block", 26))
sketch2.addConstraint(Sketcher.Constraint("Block", 27))
sketch2.addConstraint(Sketcher.Constraint("Block", 28))
sketch2.addConstraint(Sketcher.Constraint("Block", 29))
sketch2.addConstraint(Sketcher.Constraint("Block", 30))
sketch2.addConstraint(Sketcher.Constraint("Block", 31))
sketch2.addConstraint(Sketcher.Constraint("Block", 32))
sketch2.addConstraint(Sketcher.Constraint("Block", 33))
sketch2.addConstraint(Sketcher.Constraint("Block", 34))
sketch2.addConstraint(Sketcher.Constraint("Block", 35))
sketch2.addConstraint(Sketcher.Constraint("Block", 36))
sketch2.addConstraint(Sketcher.Constraint("Block", 37))
sketch2.addConstraint(Sketcher.Constraint("Vertical", 0))
sketch2.addConstraint(Sketcher.Constraint("Vertical", 2))
sketch2.addConstraint(Sketcher.Constraint("Horizontal", 3))
sketch2.addConstraint(Sketcher.Constraint("Vertical", 4))
sketch2.addConstraint(Sketcher.Constraint("Horizontal", 5))
sketch2.addConstraint(Sketcher.Constraint("Vertical", 6))
sketch2.addConstraint(Sketcher.Constraint("Horizontal", 8))
sketch2.addConstraint(Sketcher.Constraint("Vertical", 9))
sketch2.addConstraint(Sketcher.Constraint("Horizontal", 10))
sketch2.addConstraint(Sketcher.Constraint("Vertical", 11))
sketch2.addConstraint(Sketcher.Constraint("Horizontal", 12))
sketch2.addConstraint(Sketcher.Constraint("Vertical", 13))
sketch2.addConstraint(Sketcher.Constraint("Horizontal", 14))
sketch2.addConstraint(Sketcher.Constraint("Vertical", 15))
sketch2.addConstraint(Sketcher.Constraint("Horizontal", 16))
sketch2.addConstraint(Sketcher.Constraint("Vertical", 17))
sketch2.addConstraint(Sketcher.Constraint("Horizontal", 19))
sketch2.addConstraint(Sketcher.Constraint("Horizontal", 12, 2, 15, 2))
sketch2.addConstraint(Sketcher.Constraint("Horizontal", 10, 2, 18, 2))
sketch2.addConstraint(Sketcher.Constraint("Vertical", 4, 2, 10, 2))
sketch2.addConstraint(Sketcher.Constraint("Vertical", 9, 2, 12, 2))
sketch2.addConstraint(Sketcher.Constraint("Vertical", 15, 2, 17, 2))
sketch2.addConstraint(Sketcher.Constraint("Equal", 12, 2))
sketch2.addConstraint(Sketcher.Constraint("Equal", 4, 11))
sketch2.addConstraint(Sketcher.Constraint("DistanceX", -1, 1, 3, 2, Q("3 mm")))
sketch2.addConstraint(Sketcher.Constraint("DistanceX", 5, 2, 5, 1, Q("3.175 mm")))
sketch2.addConstraint(Sketcher.Constraint("DistanceY", 17, 2, 17, 1, Q("0.702799 mm")))
sketch2.addConstraint(Sketcher.Constraint("DistanceX", 16, 2, 16, 1, Q("2.075962 mm")))
sketch2.addConstraint(Sketcher.Constraint("DistanceY", 4, 1, 4, 2, Q("0.569872 mm")))
sketch2.addConstraint(Sketcher.Constraint("DistanceY", 6, 2, 6, 1, Q("0.59404 mm")))
sketch2.addConstraint(Sketcher.Constraint("DistanceY", 9, 1, 9, 2, Q("1.343269 mm")))
sketch2.addConstraint(Sketcher.Constraint("DistanceX", 7, 2, 17, 2, Q("0.047701 mm")))
sketch2.addConstraint(Sketcher.Constraint("DistanceX", 3, 1, 3, 2, Q("2.645833 mm")))
sketch2.addConstraint(Sketcher.Constraint("DistanceX", 8, 1, 8, 2, Q("0.576868 mm")))
sketch2.addConstraint(Sketcher.Constraint("DistanceX", 10, 1, 10, 2, Q("0.651282 mm")))
sketch2.addConstraint(Sketcher.Constraint("DistanceX", 19, 1, 19, 2, Q("1.080594 mm")))
sketch2.addConstraint(Sketcher.Constraint("DistanceY", 0, 2, 0, 1, Q("0.880884 mm")))
sketch2.addConstraint(Sketcher.Constraint("DistanceY", 13, 1, 13, 2, Q("0.284936 mm")))
sketch2.addConstraint(Sketcher.Constraint("DistanceY", 0, 2, -1, 1, Q("25.154882 mm")))
sketch2.addConstraint(Sketcher.Constraint("DistanceY", 0, 2, 6, 2, Q("3.176908 mm")))
pad2 = body.newObject("PartDesign::Pad", "Pad001")
pad2.Profile = sketch2
pad2.Length = 1

doc.recompute()
